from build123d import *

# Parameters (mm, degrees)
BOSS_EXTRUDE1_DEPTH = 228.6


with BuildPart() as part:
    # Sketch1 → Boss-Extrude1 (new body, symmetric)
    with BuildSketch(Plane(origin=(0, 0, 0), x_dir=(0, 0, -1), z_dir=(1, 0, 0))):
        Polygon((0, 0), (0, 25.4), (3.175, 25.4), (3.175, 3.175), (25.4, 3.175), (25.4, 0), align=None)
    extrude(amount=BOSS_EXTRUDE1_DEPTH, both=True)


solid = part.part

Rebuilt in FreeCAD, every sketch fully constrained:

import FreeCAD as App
import Part
import Sketcher
Q = App.Units.Quantity

doc = App.newDocument("Part")
body = doc.addObject("PartDesign::Body", "Body")

# Sketch on YZ plane
sketch1 = body.newObject("Sketcher::SketchObject", "Sketch")
sketch1.AttachmentSupport = (doc.getObject("YZ_Plane"), [""])
sketch1.MapMode = "FlatFace"
sketch1.addGeometry(Part.LineSegment(App.Vector(25.4, 0, 0), App.Vector(0, 0, 0)), False)
sketch1.addGeometry(Part.LineSegment(App.Vector(0, 0, 0), App.Vector(0, -25.4, 0)), False)
sketch1.addGeometry(Part.LineSegment(App.Vector(0, -25.4, 0), App.Vector(3.175, -25.4, 0)), False)
sketch1.addGeometry(Part.LineSegment(App.Vector(3.175, -25.4, 0), App.Vector(3.175, -3.175, 0)), False)
sketch1.addGeometry(Part.LineSegment(App.Vector(3.175, -3.175, 0), App.Vector(25.4, -3.175, 0)), False)
sketch1.addGeometry(Part.LineSegment(App.Vector(25.4, -3.175, 0), App.Vector(25.4, 0, 0)), False)
sketch1.addConstraint(Sketcher.Constraint("Coincident", 0, 2, 1, 1))
sketch1.addConstraint(Sketcher.Constraint("Coincident", 1, 2, 2, 1))
sketch1.addConstraint(Sketcher.Constraint("Coincident", 2, 2, 3, 1))
sketch1.addConstraint(Sketcher.Constraint("Coincident", 3, 2, 4, 1))
sketch1.addConstraint(Sketcher.Constraint("Coincident", 4, 2, 5, 1))
sketch1.addConstraint(Sketcher.Constraint("Coincident", 5, 2, 0, 1))
sketch1.addConstraint(Sketcher.Constraint("Horizontal", 0))
sketch1.addConstraint(Sketcher.Constraint("Vertical", 1))
sketch1.addConstraint(Sketcher.Constraint("Horizontal", 2))
sketch1.addConstraint(Sketcher.Constraint("Vertical", 3))
sketch1.addConstraint(Sketcher.Constraint("Horizontal", 4))
sketch1.addConstraint(Sketcher.Constraint("Vertical", 5))
sketch1.addConstraint(Sketcher.Constraint("Coincident", 0, 2, -1, 1))
sketch1.addConstraint(Sketcher.Constraint("Equal", 0, 1))
sketch1.addConstraint(Sketcher.Constraint("Equal", 4, 3))
sketch1.addConstraint(Sketcher.Constraint("DistanceX", 0, 2, 0, 1, Q("1 in")))
sketch1.addConstraint(Sketcher.Constraint("DistanceX", 2, 1, 2, 2, Q("0.125 in")))
pad1 = body.newObject("PartDesign::Pad", "Pad")
pad1.Profile = sketch1
pad1.Length = Q("18 in")
pad1.Midplane = True

doc.recompute()
